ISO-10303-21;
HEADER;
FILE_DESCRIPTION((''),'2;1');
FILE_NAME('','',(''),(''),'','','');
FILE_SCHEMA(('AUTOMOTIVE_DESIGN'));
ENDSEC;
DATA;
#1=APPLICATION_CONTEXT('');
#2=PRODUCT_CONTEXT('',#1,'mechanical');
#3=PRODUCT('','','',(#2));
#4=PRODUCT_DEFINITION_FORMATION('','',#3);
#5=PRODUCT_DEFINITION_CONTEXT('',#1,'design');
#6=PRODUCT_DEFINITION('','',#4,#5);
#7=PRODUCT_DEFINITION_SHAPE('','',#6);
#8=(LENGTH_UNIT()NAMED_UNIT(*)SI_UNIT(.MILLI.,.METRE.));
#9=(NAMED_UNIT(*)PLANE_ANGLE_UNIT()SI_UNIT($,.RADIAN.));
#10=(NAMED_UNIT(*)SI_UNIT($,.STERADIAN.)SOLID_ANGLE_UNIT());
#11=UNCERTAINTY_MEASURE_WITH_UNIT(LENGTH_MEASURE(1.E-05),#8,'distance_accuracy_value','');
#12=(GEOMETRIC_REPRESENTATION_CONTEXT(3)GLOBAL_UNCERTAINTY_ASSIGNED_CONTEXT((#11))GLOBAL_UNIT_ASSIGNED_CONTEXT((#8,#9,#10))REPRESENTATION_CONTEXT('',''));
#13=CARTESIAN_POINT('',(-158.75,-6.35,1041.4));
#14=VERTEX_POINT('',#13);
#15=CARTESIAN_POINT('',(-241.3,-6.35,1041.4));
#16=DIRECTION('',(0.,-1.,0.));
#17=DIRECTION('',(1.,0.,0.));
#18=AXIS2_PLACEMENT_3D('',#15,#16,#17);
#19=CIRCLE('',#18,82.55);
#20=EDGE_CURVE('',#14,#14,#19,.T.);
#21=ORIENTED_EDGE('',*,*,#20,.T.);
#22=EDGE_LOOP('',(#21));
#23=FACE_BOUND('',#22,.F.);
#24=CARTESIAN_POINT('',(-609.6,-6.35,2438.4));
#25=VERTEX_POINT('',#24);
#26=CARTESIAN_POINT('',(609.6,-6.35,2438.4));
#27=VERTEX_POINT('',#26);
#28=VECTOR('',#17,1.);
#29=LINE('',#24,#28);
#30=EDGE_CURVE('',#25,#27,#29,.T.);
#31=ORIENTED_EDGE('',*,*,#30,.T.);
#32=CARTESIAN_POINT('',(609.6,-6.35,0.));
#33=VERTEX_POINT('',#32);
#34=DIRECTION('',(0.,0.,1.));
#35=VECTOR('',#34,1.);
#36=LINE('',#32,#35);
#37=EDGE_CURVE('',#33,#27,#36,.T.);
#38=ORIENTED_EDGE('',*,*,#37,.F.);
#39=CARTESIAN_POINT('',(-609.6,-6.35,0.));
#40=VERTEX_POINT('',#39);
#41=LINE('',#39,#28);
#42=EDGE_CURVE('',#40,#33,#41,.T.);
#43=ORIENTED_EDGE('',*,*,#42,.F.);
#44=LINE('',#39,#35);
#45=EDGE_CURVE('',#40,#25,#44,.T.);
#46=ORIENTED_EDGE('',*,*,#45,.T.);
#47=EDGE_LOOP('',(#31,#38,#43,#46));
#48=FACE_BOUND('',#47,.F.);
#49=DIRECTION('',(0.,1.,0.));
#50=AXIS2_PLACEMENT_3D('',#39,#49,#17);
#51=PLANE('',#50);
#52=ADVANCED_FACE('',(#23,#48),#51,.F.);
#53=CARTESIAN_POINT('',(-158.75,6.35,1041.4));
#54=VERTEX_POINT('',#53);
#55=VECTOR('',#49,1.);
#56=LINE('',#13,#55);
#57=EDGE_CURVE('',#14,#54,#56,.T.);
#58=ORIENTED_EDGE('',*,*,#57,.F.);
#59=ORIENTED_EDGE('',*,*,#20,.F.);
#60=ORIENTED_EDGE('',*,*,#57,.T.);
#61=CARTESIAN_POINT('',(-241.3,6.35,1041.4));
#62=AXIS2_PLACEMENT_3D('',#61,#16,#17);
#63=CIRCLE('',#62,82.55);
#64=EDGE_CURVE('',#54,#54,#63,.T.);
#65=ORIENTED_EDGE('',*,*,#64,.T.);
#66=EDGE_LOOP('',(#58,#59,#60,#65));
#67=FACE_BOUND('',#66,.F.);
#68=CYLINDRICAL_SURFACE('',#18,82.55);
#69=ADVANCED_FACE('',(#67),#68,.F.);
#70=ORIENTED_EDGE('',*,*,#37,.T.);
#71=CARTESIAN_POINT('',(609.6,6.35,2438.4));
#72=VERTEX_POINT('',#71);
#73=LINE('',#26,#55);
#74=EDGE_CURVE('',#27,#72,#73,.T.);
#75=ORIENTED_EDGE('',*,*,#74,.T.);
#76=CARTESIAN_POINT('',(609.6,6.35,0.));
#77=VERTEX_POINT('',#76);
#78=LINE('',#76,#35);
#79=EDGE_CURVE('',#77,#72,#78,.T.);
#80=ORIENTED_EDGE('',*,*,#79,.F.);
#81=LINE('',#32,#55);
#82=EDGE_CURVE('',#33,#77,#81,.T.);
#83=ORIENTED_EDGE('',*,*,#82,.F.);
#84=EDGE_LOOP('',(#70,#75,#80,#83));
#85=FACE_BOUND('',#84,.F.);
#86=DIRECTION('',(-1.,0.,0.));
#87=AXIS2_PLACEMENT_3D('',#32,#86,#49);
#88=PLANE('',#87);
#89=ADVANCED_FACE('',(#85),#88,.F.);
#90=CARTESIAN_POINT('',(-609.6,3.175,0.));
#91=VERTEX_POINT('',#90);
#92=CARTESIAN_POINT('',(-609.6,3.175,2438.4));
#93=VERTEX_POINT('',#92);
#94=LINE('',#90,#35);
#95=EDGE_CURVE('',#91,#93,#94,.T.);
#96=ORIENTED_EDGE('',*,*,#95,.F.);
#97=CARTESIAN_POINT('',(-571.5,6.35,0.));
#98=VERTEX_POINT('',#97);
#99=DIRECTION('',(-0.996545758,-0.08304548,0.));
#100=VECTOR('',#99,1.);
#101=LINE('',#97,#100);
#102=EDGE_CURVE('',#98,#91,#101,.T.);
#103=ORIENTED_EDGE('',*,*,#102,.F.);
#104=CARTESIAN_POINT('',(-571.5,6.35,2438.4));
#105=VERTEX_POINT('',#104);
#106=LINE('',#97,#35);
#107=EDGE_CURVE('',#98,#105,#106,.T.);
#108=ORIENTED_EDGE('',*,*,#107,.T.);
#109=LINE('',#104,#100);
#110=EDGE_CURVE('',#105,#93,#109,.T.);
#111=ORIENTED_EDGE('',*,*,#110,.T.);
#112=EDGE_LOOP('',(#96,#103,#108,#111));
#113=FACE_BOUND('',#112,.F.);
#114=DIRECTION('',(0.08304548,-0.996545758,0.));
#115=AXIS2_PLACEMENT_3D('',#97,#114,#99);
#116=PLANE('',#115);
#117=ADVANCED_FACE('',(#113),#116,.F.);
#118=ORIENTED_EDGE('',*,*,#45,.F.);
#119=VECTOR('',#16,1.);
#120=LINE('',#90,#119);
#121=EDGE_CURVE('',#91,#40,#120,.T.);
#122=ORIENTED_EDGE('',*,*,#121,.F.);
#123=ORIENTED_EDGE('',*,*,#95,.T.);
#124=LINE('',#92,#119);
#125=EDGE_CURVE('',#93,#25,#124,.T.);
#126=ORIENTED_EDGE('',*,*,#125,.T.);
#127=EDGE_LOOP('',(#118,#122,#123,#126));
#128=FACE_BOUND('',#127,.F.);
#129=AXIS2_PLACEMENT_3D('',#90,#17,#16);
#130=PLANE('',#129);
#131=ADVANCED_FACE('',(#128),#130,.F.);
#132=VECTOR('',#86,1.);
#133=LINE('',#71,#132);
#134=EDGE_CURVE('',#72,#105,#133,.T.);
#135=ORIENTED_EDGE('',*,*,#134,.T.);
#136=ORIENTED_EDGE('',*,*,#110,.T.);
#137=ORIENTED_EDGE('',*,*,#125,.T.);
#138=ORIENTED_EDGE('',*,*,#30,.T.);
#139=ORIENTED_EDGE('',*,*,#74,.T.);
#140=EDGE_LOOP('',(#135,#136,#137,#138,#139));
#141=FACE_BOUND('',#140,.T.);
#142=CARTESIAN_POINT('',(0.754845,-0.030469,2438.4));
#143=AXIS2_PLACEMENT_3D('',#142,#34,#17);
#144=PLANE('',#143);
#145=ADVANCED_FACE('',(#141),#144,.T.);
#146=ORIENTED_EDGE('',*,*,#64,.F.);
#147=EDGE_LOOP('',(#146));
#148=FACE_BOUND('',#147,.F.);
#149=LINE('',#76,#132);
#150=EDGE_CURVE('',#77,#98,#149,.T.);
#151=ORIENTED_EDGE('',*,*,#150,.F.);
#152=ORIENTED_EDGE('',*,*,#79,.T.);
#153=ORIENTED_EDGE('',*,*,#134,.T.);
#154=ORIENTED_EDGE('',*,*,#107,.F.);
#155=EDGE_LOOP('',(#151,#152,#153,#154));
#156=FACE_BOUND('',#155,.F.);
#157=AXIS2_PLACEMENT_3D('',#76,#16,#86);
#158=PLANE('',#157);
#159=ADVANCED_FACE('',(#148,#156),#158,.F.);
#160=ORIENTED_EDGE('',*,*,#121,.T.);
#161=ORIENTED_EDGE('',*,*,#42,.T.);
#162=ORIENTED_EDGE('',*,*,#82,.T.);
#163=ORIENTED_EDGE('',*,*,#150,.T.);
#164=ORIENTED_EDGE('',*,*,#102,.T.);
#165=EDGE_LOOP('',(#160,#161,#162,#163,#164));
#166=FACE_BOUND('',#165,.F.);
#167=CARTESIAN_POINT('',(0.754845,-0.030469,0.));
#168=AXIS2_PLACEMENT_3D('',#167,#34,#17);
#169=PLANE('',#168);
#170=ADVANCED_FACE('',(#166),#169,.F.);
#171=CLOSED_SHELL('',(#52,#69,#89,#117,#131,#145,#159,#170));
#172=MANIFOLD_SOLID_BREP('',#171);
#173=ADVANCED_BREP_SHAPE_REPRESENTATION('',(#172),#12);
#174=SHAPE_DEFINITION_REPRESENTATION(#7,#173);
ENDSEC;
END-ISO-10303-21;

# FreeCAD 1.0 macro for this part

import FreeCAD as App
import Part
import Sketcher

V = App.Vector
Q = App.Units.Quantity


def add_polygon(sketch, points):
    """Adds a closed chain of lines whose ends are joined by coincident constraints."""
    first, n = sketch.GeometryCount, len(points)
    for a, b in zip(points, points[1:] + points[:1]):
        sketch.addGeometry(Part.LineSegment(App.Vector(*a, 0), App.Vector(*b, 0)), False)
    for i in range(n):
        sketch.addConstraint(Sketcher.Constraint("Coincident", first + i, 2, first + (i + 1) % n, 1))

doc = App.newDocument("Part")
body = doc.addObject("PartDesign::Body", "Body")

sketch1 = body.newObject("Sketcher::SketchObject", "Sketch")
sketch1.AttachmentSupport = (doc.getObject("XY_Plane"), [""])
sketch1.MapMode = "FlatFace"
add_polygon(sketch1, [(-609.6, 3.175), (-609.6, -6.35), (609.6, -6.35), (609.6, 6.35), (-571.5, 6.35)])
sketch1.addConstraint([
    Sketcher.Constraint("Vertical", 0),
    Sketcher.Constraint("Horizontal", 1),
    Sketcher.Constraint("Vertical", 2),
    Sketcher.Constraint("Horizontal", 3),
    Sketcher.Constraint("Symmetric", 0, 2, 2, 2, -1, 1),
    Sketcher.Constraint("DistanceX", 1, 1, 1, 2, Q("48 in")),
    Sketcher.Constraint("DistanceX", 3, 2, 3, 1, Q("46.5 in")),
    Sketcher.Constraint("DistanceY", 2, 1, 2, 2, Q("0.5 in")),
    Sketcher.Constraint("DistanceY", 0, 2, 0, 1, Q("0.375 in")),
])
pad1 = body.newObject("PartDesign::Pad", "Pad")
pad1.Profile = sketch1
pad1.Length = Q("96 in")

sketch2 = body.newObject("Sketcher::SketchObject", "Sketch001")
sketch2.AttachmentSupport = (doc.getObject("XZ_Plane"), [""])
sketch2.MapMode = "FlatFace"
sketch2.AttachmentOffset = App.Placement(V(0, 0, 0.25 * 25.4), App.Rotation())
sketch2.addGeometry(Part.Circle(V(-241.3, 1041.4, 0), V(0, 0, 1), 82.55), False)
sketch2.addConstraint([
    Sketcher.Constraint("Diameter", 0, Q("6.5 in")),
    Sketcher.Constraint("DistanceY", -1, 1, 0, 3, Q("41 in")),
    Sketcher.Constraint("DistanceX", 0, 3, -1, 1, Q("9.5 in")),
])
pocket1 = body.newObject("PartDesign::Pocket", "Pocket")
pocket1.Profile = sketch2
pocket1.Length = Q("1 in")

doc.recompute()
